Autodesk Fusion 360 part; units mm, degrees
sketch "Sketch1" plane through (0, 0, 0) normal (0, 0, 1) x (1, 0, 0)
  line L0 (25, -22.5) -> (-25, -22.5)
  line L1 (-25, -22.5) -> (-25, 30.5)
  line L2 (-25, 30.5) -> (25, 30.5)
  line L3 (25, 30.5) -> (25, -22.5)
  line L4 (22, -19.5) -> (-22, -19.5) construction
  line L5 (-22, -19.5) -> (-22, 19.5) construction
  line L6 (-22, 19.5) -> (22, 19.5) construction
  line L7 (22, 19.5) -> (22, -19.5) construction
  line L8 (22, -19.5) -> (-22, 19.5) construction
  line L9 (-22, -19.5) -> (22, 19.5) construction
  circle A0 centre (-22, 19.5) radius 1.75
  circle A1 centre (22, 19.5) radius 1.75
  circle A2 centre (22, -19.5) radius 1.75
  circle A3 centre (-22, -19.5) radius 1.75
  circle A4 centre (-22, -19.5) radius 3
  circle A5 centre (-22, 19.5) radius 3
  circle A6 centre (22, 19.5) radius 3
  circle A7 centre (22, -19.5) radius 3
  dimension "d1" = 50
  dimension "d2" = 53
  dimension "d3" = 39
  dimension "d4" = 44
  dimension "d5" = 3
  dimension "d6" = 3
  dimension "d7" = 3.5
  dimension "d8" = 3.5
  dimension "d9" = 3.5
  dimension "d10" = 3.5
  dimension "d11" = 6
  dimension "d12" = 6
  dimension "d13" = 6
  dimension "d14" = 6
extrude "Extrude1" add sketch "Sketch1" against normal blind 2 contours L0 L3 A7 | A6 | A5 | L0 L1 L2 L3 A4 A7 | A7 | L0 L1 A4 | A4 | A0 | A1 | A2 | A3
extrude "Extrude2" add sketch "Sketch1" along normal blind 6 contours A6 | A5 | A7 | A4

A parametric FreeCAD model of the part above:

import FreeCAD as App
import Part
import Sketcher

V = App.Vector
Q = App.Units.Quantity


def add_polygon(sketch, points):
    """Adds a closed chain of lines whose ends are joined by coincident constraints."""
    first, n = sketch.GeometryCount, len(points)
    for a, b in zip(points, points[1:] + points[:1]):
        sketch.addGeometry(Part.LineSegment(App.Vector(*a, 0), App.Vector(*b, 0)), False)
    for i in range(n):
        sketch.addConstraint(Sketcher.Constraint("Coincident", first + i, 2, first + (i + 1) % n, 1))

doc = App.newDocument("Part")
params = doc.addObject("Spreadsheet::Sheet", "Params")
for row, (alias, value) in enumerate([
    ("sketch1_width", "50 mm"),
    ("sketch1_height", "53 mm"),
    ("pad1_length", "2 mm"),
    ("sketch2_diameter", "6 mm"),
    ("sketch2_diameter2", "3.5 mm"),
    ("pad2_length", "6 mm"),
], start=1):
    params.set(f"A{row}", alias)
    params.set(f"B{row}", "=" + value)
    params.setAlias(f"B{row}", alias)

body = doc.addObject("PartDesign::Body", "Body")

# Sketch on XY plane
sketch1 = doc.addObject("Sketcher::SketchObject", "Sketch")
body.addObject(sketch1)
sketch1.AttachmentSupport = (doc.XY_Plane, [""])
sketch1.MapMode = "FlatFace"
add_polygon(sketch1, [(25, -22), (25, 30), (-25, 30), (-25, -22)])  # lines 0-3
sketch1.addConstraint([
    Sketcher.Constraint("Vertical", 0),
    Sketcher.Constraint("Horizontal", 1),
    Sketcher.Constraint("Vertical", 2),
    Sketcher.Constraint("Horizontal", 3),
    Sketcher.Constraint("DistanceX", 1, 2, 1, 1, Q("50 mm")),
    Sketcher.Constraint("DistanceY", 0, 1, 0, 2, Q("53 mm")),
    Sketcher.Constraint("DistanceX", -1, 1, 0, 2, Q("25 mm")),
    Sketcher.Constraint("DistanceY", -1, 1, 0, 2, Q("30.5 mm")),
])
sketch1.setExpression("Constraints[8]", "Params.sketch1_width")
sketch1.setExpression("Constraints[9]", "Params.sketch1_height")
pad1 = doc.addObject("PartDesign::Pad", "Pad")
body.addObject(pad1)
pad1.Profile = sketch1
pad1.setExpression("Length", "Params.pad1_length")
pad1.Reversed = True

# Sketch on XY plane
sketch2 = doc.addObject("Sketcher::SketchObject", "Sketch001")
body.addObject(sketch2)
sketch2.AttachmentSupport = (doc.XY_Plane, [""])
sketch2.MapMode = "FlatFace"
sketch2.addGeometry([
    Part.Circle(V(22, 19.5, 0), V(0, 0, 1), 3),  # 0
    Part.Circle(V(22, 19.5, 0), V(0, 0, 1), 1.8),  # 1
    Part.Circle(V(-22, 19.5, 0), V(0, 0, 1), 3),  # 2
    Part.Circle(V(-22, 19.5, 0), V(0, 0, 1), 1.8),  # 3
    Part.Circle(V(22, -19.5, 0), V(0, 0, 1), 3),  # 4
    Part.Circle(V(22, -19.5, 0), V(0, 0, 1), 1.8),  # 5
    Part.Circle(V(-22, -19.5, 0), V(0, 0, 1), 3),  # 6
    Part.Circle(V(-22, -19.5, 0), V(0, 0, 1), 1.8),  # 7
], False)
sketch2.addConstraint([
    Sketcher.Constraint("Coincident", 1, 3, 0, 3),
    Sketcher.Constraint("Coincident", 3, 3, 2, 3),
    Sketcher.Constraint("Coincident", 5, 3, 4, 3),
    Sketcher.Constraint("Coincident", 7, 3, 6, 3),
    Sketcher.Constraint("Equal", 0, 2),
    Sketcher.Constraint("Equal", 1, 3),
    Sketcher.Constraint("Equal", 2, 4),
    Sketcher.Constraint("Equal", 3, 5),
    Sketcher.Constraint("Equal", 4, 6),
    Sketcher.Constraint("Equal", 5, 7),
    Sketcher.Constraint("Symmetric", 2, 3, 4, 3, -1, 1),
    Sketcher.Constraint("Symmetric", 0, 3, 6, 3, -1, 1),
    Sketcher.Constraint("Symmetric", 0, 3, 2, 3, -2),
    Sketcher.Constraint("Diameter", 0, Q("6 mm")),
    Sketcher.Constraint("Diameter", 1, Q("3.5 mm")),
    Sketcher.Constraint("DistanceX", 2, 3, 0, 3, Q("44 mm")),
    Sketcher.Constraint("DistanceY", 4, 3, 0, 3, Q("39 mm")),
])
sketch2.setExpression("Constraints[13]", "Params.sketch2_diameter")
sketch2.setExpression("Constraints[14]", "Params.sketch2_diameter2")
pad2 = doc.addObject("PartDesign::Pad", "Pad001")
body.addObject(pad2)
pad2.Profile = sketch2
pad2.setExpression("Length", "Params.pad2_length")

doc.recompute()
